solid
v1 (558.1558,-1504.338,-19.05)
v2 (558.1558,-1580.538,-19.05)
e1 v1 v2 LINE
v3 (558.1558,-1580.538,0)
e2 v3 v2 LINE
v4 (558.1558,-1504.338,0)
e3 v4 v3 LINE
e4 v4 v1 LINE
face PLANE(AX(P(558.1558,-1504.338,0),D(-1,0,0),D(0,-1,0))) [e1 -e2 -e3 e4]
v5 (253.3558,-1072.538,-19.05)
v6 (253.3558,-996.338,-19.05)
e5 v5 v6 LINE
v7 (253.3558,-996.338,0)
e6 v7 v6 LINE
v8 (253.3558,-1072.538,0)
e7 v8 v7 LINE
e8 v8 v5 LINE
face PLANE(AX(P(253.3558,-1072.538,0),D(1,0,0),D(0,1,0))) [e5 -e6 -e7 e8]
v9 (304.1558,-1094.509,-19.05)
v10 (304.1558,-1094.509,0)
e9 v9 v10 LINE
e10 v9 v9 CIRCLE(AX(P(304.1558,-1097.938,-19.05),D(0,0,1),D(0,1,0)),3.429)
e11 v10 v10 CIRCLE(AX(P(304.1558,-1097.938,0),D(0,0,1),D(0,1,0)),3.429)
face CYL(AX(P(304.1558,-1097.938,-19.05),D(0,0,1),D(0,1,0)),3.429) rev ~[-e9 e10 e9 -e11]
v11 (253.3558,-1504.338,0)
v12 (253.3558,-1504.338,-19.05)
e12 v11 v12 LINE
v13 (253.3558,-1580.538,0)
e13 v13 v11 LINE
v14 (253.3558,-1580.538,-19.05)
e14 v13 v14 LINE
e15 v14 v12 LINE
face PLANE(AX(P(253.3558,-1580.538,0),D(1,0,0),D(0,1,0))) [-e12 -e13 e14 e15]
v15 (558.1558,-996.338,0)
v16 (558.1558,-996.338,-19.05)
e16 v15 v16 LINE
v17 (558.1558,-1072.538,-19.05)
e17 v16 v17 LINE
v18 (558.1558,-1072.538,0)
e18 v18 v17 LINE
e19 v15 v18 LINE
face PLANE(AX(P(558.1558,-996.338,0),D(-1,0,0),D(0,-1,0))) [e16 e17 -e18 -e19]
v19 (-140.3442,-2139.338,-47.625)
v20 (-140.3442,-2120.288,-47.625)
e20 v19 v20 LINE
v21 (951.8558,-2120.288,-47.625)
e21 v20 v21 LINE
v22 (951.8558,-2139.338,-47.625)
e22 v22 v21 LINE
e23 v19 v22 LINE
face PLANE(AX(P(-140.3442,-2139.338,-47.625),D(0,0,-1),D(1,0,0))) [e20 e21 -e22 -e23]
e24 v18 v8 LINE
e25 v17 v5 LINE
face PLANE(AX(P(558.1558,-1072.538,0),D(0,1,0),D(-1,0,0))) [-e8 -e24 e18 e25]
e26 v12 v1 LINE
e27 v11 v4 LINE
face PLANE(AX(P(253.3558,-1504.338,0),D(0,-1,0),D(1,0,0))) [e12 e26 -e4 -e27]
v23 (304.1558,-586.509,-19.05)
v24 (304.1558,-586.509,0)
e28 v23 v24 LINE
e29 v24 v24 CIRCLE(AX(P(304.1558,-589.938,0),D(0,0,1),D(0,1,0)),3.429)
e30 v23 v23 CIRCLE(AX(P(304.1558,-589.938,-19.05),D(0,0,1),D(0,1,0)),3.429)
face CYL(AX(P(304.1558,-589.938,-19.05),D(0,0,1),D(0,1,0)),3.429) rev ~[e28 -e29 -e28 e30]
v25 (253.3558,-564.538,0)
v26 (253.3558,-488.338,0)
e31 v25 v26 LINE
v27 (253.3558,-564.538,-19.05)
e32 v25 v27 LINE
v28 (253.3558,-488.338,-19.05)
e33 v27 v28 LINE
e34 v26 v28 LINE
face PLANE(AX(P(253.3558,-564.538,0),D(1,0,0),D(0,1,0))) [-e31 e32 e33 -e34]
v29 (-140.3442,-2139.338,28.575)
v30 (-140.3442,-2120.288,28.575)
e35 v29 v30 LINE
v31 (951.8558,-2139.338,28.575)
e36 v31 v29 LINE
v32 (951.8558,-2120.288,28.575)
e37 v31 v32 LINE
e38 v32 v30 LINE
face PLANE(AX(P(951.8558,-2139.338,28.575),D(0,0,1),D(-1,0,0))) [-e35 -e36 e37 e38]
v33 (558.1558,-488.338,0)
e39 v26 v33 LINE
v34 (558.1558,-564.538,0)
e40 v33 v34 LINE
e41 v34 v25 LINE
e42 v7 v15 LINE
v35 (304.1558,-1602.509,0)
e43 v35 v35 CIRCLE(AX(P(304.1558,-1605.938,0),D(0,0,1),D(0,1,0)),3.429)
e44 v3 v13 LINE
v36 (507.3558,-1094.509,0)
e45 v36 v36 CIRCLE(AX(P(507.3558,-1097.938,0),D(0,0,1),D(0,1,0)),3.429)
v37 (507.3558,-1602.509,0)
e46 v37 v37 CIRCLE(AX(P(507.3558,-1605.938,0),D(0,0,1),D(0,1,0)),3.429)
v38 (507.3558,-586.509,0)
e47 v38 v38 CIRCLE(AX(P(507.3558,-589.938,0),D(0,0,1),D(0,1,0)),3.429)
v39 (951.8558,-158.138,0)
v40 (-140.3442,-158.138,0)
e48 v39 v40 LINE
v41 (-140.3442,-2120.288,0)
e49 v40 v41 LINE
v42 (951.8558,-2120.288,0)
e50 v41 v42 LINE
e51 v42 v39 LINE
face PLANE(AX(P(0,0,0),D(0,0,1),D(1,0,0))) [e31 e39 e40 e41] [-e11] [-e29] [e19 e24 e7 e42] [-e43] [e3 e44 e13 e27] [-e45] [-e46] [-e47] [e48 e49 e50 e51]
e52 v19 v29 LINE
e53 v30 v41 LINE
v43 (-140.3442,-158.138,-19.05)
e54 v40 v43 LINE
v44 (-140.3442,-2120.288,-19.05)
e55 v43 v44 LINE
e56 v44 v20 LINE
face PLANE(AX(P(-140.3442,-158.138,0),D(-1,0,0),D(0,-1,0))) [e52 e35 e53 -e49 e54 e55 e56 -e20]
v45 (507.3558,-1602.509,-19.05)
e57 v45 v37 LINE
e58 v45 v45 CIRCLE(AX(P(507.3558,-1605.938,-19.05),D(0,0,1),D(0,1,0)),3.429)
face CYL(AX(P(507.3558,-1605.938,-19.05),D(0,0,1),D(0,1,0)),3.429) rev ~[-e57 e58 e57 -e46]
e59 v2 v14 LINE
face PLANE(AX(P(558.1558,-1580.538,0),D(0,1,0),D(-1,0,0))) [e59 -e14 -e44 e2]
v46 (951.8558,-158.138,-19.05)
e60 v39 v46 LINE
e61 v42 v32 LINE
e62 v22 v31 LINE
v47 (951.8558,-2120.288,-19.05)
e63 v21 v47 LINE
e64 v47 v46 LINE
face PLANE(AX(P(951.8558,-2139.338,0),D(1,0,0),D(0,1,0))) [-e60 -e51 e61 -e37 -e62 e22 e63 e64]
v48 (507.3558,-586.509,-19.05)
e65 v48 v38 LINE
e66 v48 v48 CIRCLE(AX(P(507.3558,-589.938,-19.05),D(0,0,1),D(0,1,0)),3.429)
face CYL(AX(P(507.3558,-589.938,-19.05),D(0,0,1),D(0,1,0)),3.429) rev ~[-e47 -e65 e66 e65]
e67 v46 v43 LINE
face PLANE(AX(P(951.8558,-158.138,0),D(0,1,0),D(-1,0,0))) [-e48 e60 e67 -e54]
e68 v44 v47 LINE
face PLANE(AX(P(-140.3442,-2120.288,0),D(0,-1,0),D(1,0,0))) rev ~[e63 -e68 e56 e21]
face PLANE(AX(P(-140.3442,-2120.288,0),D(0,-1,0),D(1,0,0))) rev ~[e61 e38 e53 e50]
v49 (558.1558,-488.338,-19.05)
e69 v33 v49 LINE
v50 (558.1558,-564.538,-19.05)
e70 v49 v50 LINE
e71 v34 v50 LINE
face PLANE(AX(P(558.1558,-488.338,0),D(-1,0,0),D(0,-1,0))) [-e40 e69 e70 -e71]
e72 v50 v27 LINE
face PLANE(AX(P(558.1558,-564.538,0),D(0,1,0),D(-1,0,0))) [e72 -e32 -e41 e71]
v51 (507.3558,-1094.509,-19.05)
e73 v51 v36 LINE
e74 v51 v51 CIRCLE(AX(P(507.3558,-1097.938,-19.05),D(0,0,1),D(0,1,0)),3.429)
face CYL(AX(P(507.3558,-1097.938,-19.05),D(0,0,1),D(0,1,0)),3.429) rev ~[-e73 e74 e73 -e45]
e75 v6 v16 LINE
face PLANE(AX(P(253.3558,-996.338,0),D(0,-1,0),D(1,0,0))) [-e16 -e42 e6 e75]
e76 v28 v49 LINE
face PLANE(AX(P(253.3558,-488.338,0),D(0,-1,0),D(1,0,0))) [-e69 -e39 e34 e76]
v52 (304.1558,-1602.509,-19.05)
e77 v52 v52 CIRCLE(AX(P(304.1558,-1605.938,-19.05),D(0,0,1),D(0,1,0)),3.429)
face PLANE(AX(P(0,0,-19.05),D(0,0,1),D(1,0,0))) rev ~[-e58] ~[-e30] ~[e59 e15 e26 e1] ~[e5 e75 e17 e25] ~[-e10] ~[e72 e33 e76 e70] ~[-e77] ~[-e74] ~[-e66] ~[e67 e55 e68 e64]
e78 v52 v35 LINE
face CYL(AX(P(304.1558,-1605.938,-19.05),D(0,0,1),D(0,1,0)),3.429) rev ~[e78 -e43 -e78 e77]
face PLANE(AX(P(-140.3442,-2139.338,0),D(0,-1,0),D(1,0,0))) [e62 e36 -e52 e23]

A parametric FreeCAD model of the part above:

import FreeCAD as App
import Part
import Sketcher
from FreeCAD import Vector
Q = App.Units.Quantity

doc = App.newDocument("Part")
params = doc.addObject("Spreadsheet::Sheet", "Params")
for row, (alias, value) in enumerate([
    ("sketch1_width", "43 in"),
    ("sketch1_width2", "12 in"),
    ("sketch1_height", "78 in"),
    ("sketch1_height2", "3 in"),
    ("pad1_length", "0.75 in"),
    ("sketch2_width", "43 in"),
    ("sketch2_height", "1.125 in"),
    ("pad2_length", "0.75 in"),
    ("sketch3_diameter", "0.27 in"),
    ("hole_diameter", "0.27 in"),
    ("hole_depth", "1 in"),
], start=1):
    params.set(f"A{row}", alias)
    params.set(f"B{row}", "=" + value)
    params.setAlias(f"B{row}", alias)

body = doc.addObject("PartDesign::Body", "Body")

# Sketch on XY plane
sketch1 = body.newObject("Sketcher::SketchObject", "Sketch")
sketch1.AttachmentSupport = (doc.getObject("XY_Plane"), [""])
sketch1.MapMode = "FlatFace"
sketch1.addGeometry(Part.LineSegment(Vector(-140, -158, 0), Vector(-140, -2139, 0)), False)
sketch1.addGeometry(Part.LineSegment(Vector(-140, -2139, 0), Vector(952, -2139, 0)), False)
sketch1.addGeometry(Part.LineSegment(Vector(952, -2139, 0), Vector(952, -158, 0)), False)
sketch1.addGeometry(Part.LineSegment(Vector(952, -158, 0), Vector(-140, -158, 0)), False)
sketch1.addGeometry(Part.LineSegment(Vector(253, -1581, 0), Vector(253, -1504, 0)), False)
sketch1.addGeometry(Part.LineSegment(Vector(253, -1504, 0), Vector(558, -1504, 0)), False)
sketch1.addGeometry(Part.LineSegment(Vector(558, -1504, 0), Vector(558, -1581, 0)), False)
sketch1.addGeometry(Part.LineSegment(Vector(558, -1581, 0), Vector(253, -1581, 0)), False)
sketch1.addGeometry(Part.LineSegment(Vector(253, -1073, 0), Vector(253, -996, 0)), False)
sketch1.addGeometry(Part.LineSegment(Vector(253, -996, 0), Vector(558, -996, 0)), False)
sketch1.addGeometry(Part.LineSegment(Vector(558, -996, 0), Vector(558, -1073, 0)), False)
sketch1.addGeometry(Part.LineSegment(Vector(558, -1073, 0), Vector(253, -1073, 0)), False)
sketch1.addGeometry(Part.LineSegment(Vector(253, -565, 0), Vector(253, -488, 0)), False)
sketch1.addGeometry(Part.LineSegment(Vector(253, -488, 0), Vector(558, -488, 0)), False)
sketch1.addGeometry(Part.LineSegment(Vector(558, -488, 0), Vector(558, -565, 0)), False)
sketch1.addGeometry(Part.LineSegment(Vector(558, -565, 0), Vector(253, -565, 0)), False)
sketch1.addConstraint(Sketcher.Constraint("Coincident", 0, 2, 1, 1))
sketch1.addConstraint(Sketcher.Constraint("Coincident", 1, 2, 2, 1))
sketch1.addConstraint(Sketcher.Constraint("Coincident", 2, 2, 3, 1))
sketch1.addConstraint(Sketcher.Constraint("Coincident", 3, 2, 0, 1))
sketch1.addConstraint(Sketcher.Constraint("Coincident", 4, 2, 5, 1))
sketch1.addConstraint(Sketcher.Constraint("Coincident", 5, 2, 6, 1))
sketch1.addConstraint(Sketcher.Constraint("Coincident", 6, 2, 7, 1))
sketch1.addConstraint(Sketcher.Constraint("Coincident", 7, 2, 4, 1))
sketch1.addConstraint(Sketcher.Constraint("Coincident", 8, 2, 9, 1))
sketch1.addConstraint(Sketcher.Constraint("Coincident", 9, 2, 10, 1))
sketch1.addConstraint(Sketcher.Constraint("Coincident", 10, 2, 11, 1))
sketch1.addConstraint(Sketcher.Constraint("Coincident", 11, 2, 8, 1))
sketch1.addConstraint(Sketcher.Constraint("Coincident", 12, 2, 13, 1))
sketch1.addConstraint(Sketcher.Constraint("Coincident", 13, 2, 14, 1))
sketch1.addConstraint(Sketcher.Constraint("Coincident", 14, 2, 15, 1))
sketch1.addConstraint(Sketcher.Constraint("Coincident", 15, 2, 12, 1))
sketch1.addConstraint(Sketcher.Constraint("Vertical", 0))
sketch1.addConstraint(Sketcher.Constraint("Horizontal", 1))
sketch1.addConstraint(Sketcher.Constraint("Vertical", 2))
sketch1.addConstraint(Sketcher.Constraint("Horizontal", 3))
sketch1.addConstraint(Sketcher.Constraint("Vertical", 4))
sketch1.addConstraint(Sketcher.Constraint("Horizontal", 5))
sketch1.addConstraint(Sketcher.Constraint("Vertical", 6))
sketch1.addConstraint(Sketcher.Constraint("Horizontal", 7))
sketch1.addConstraint(Sketcher.Constraint("Vertical", 8))
sketch1.addConstraint(Sketcher.Constraint("Horizontal", 9))
sketch1.addConstraint(Sketcher.Constraint("Vertical", 10))
sketch1.addConstraint(Sketcher.Constraint("Horizontal", 11))
sketch1.addConstraint(Sketcher.Constraint("Vertical", 12))
sketch1.addConstraint(Sketcher.Constraint("Horizontal", 13))
sketch1.addConstraint(Sketcher.Constraint("Vertical", 14))
sketch1.addConstraint(Sketcher.Constraint("Horizontal", 15))
sketch1.addConstraint(Sketcher.Constraint("Vertical", 7, 2, 8, 2))
sketch1.addConstraint(Sketcher.Constraint("Vertical", 6, 2, 9, 2))
sketch1.addConstraint(Sketcher.Constraint("Vertical", 11, 2, 12, 2))
sketch1.addConstraint(Sketcher.Constraint("Vertical", 10, 2, 13, 2))
sketch1.addConstraint(Sketcher.Constraint("Equal", 6, 8))
sketch1.addConstraint(Sketcher.Constraint("Equal", 10, 12))
sketch1.addConstraint(Sketcher.Constraint("DistanceX", 1, 1, 1, 2, Q("43 in")))
sketch1.addConstraint(Sketcher.Constraint("DistanceX", 5, 1, 5, 2, Q("12 in")))
sketch1.addConstraint(Sketcher.Constraint("DistanceY", 0, 2, 0, 1, Q("78 in")))
sketch1.addConstraint(Sketcher.Constraint("DistanceY", 4, 1, 4, 2, Q("3 in")))
sketch1.addConstraint(Sketcher.Constraint("DistanceY", 1, 2, 6, 2, Q("22 in")))
sketch1.addConstraint(Sketcher.Constraint("DistanceX", 0, 2, 4, 2, Q("15.5 in")))
sketch1.addConstraint(Sketcher.Constraint("DistanceY", 4, 2, 8, 2, Q("20 in")))
sketch1.addConstraint(Sketcher.Constraint("DistanceY", 8, 2, 12, 2, Q("20 in")))
sketch1.addConstraint(Sketcher.Constraint("DistanceY", 0, 2, -1, 1, Q("84.2259 in")))
sketch1.addConstraint(Sketcher.Constraint("DistanceX", 0, 2, -1, 1, 140.3442))
sketch1.setExpression("Constraints[38]", "Params.sketch1_width")
sketch1.setExpression("Constraints[39]", "Params.sketch1_width2")
sketch1.setExpression("Constraints[40]", "Params.sketch1_height")
sketch1.setExpression("Constraints[41]", "Params.sketch1_height2")
pad1 = body.newObject("PartDesign::Pad", "Pad")
pad1.Profile = sketch1
pad1.setExpression("Length", "Params.pad1_length")
pad1.Reversed = True

# Sketch on XZ plane
sketch2 = body.newObject("Sketcher::SketchObject", "Sketch001")
sketch2.AttachmentSupport = (doc.getObject("XZ_Plane"), [""])
sketch2.MapMode = "FlatFace"
sketch2.AttachmentOffset = App.Placement(Vector(0, 0, 84.2259055 * 25.4), App.Rotation())
sketch2.addGeometry(Part.LineSegment(Vector(952, -19, 0), Vector(-140, -19, 0)), False)
sketch2.addGeometry(Part.LineSegment(Vector(-140, -19, 0), Vector(-140, -48, 0)), False)
sketch2.addGeometry(Part.LineSegment(Vector(-140, -48, 0), Vector(952, -48, 0)), False)
sketch2.addGeometry(Part.LineSegment(Vector(952, -48, 0), Vector(952, -19, 0)), False)
sketch2.addGeometry(Part.LineSegment(Vector(-140, 29, 0), Vector(-140, 0, 0)), False)
sketch2.addGeometry(Part.LineSegment(Vector(-140, 0, 0), Vector(952, 0, 0)), False)
sketch2.addGeometry(Part.LineSegment(Vector(952, 0, 0), Vector(952, 29, 0)), False)
sketch2.addGeometry(Part.LineSegment(Vector(952, 29, 0), Vector(-140, 29, 0)), False)
sketch2.addConstraint(Sketcher.Constraint("Coincident", 0, 2, 1, 1))
sketch2.addConstraint(Sketcher.Constraint("Coincident", 1, 2, 2, 1))
sketch2.addConstraint(Sketcher.Constraint("Coincident", 2, 2, 3, 1))
sketch2.addConstraint(Sketcher.Constraint("Coincident", 3, 2, 0, 1))
sketch2.addConstraint(Sketcher.Constraint("Coincident", 4, 2, 5, 1))
sketch2.addConstraint(Sketcher.Constraint("Coincident", 5, 2, 6, 1))
sketch2.addConstraint(Sketcher.Constraint("Coincident", 6, 2, 7, 1))
sketch2.addConstraint(Sketcher.Constraint("Coincident", 7, 2, 4, 1))
sketch2.addConstraint(Sketcher.Constraint("Horizontal", 0))
sketch2.addConstraint(Sketcher.Constraint("Vertical", 1))
sketch2.addConstraint(Sketcher.Constraint("Horizontal", 2))
sketch2.addConstraint(Sketcher.Constraint("Vertical", 3))
sketch2.addConstraint(Sketcher.Constraint("Vertical", 4))
sketch2.addConstraint(Sketcher.Constraint("Horizontal", 5))
sketch2.addConstraint(Sketcher.Constraint("Vertical", 6))
sketch2.addConstraint(Sketcher.Constraint("Horizontal", 7))
sketch2.addConstraint(Sketcher.Constraint("PointOnObject", 4, 2, -1))
sketch2.addConstraint(Sketcher.Constraint("Vertical", 1, 2, 4, 2))
sketch2.addConstraint(Sketcher.Constraint("Vertical", 3, 2, 5, 2))
sketch2.addConstraint(Sketcher.Constraint("Equal", 3, 4))
sketch2.addConstraint(Sketcher.Constraint("DistanceY", 2, 2, 6, 2, Q("3 in")))
sketch2.addConstraint(Sketcher.Constraint("DistanceX", 0, 2, 0, 1, Q("43 in")))
sketch2.addConstraint(Sketcher.Constraint("DistanceY", 1, 2, 1, 1, Q("1.125 in")))
sketch2.addConstraint(Sketcher.Constraint("DistanceX", 0, 2, -1, 1, 140.3442))
sketch2.setExpression("Constraints[21]", "Params.sketch2_width")
sketch2.setExpression("Constraints[22]", "Params.sketch2_height")
pad2 = body.newObject("PartDesign::Pad", "Pad001")
pad2.Profile = sketch2
pad2.setExpression("Length", "Params.pad2_length")
pad2.Reversed = True

# Sketch on XY plane
sketch3 = body.newObject("Sketcher::SketchObject", "Sketch002")
sketch3.AttachmentSupport = (doc.getObject("XY_Plane"), [""])
sketch3.MapMode = "FlatFace"
sketch3.AttachmentOffset = App.Placement(Vector(0, 0, -0.75 * 25.4), App.Rotation())
sketch3.addGeometry(Part.Circle(Vector(507.4, -589.9, 0), Vector(0, 0, 1), 3.4), False)
sketch3.addGeometry(Part.Circle(Vector(304.2, -589.9, 0), Vector(0, 0, 1), 3.4), False)
sketch3.addGeometry(Part.Circle(Vector(507.4, -1097.9, 0), Vector(0, 0, 1), 3.4), False)
sketch3.addGeometry(Part.Circle(Vector(304.2, -1097.9, 0), Vector(0, 0, 1), 3.4), False)
sketch3.addGeometry(Part.Circle(Vector(507.4, -1605.9, 0), Vector(0, 0, 1), 3.4), False)
sketch3.addGeometry(Part.Circle(Vector(304.2, -1605.9, 0), Vector(0, 0, 1), 3.4), False)
sketch3.addConstraint(Sketcher.Constraint("Equal", 0, 1))
sketch3.addConstraint(Sketcher.Constraint("Equal", 1, 2))
sketch3.addConstraint(Sketcher.Constraint("Equal", 2, 3))
sketch3.addConstraint(Sketcher.Constraint("Equal", 3, 4))
sketch3.addConstraint(Sketcher.Constraint("Equal", 4, 5))
sketch3.addConstraint(Sketcher.Constraint("Horizontal", 0, 3, 1, 3))
sketch3.addConstraint(Sketcher.Constraint("Horizontal", 2, 3, 3, 3))
sketch3.addConstraint(Sketcher.Constraint("Horizontal", 4, 3, 5, 3))
sketch3.addConstraint(Sketcher.Constraint("Vertical", 0, 3, 2, 3))
sketch3.addConstraint(Sketcher.Constraint("Vertical", 1, 3, 3, 3))
sketch3.addConstraint(Sketcher.Constraint("Vertical", 2, 3, 4, 3))
sketch3.addConstraint(Sketcher.Constraint("Vertical", 3, 3, 5, 3))
sketch3.addConstraint(Sketcher.Constraint("Diameter", 0, Q("0.27 in")))
sketch3.addConstraint(Sketcher.Constraint("DistanceX", 1, 3, 0, 3, Q("8 in")))
sketch3.addConstraint(Sketcher.Constraint("DistanceY", 2, 3, 0, 3, Q("20 in")))
sketch3.addConstraint(Sketcher.Constraint("DistanceY", 4, 3, 2, 3, Q("20 in")))
sketch3.addConstraint(Sketcher.Constraint("DistanceY", 0, 3, -1, 1, Q("23.2259 in")))
sketch3.addConstraint(Sketcher.Constraint("DistanceX", -1, 1, 0, 3, 507.3558))
sketch3.setExpression("Constraints[12]", "Params.sketch3_diameter")
doc.recompute()
hole = body.newObject("PartDesign::Hole", "Hole")
hole.Profile = sketch3
hole.ThreadType = "None"
hole.setExpression("Diameter", "Params.hole_diameter")
hole.DepthType = "Dimension"
hole.setExpression("Depth", "Params.hole_depth")
hole.DrillPoint = "Angled"
hole.DrillPointAngle = 118
hole.Reversed = True

doc.recompute()
